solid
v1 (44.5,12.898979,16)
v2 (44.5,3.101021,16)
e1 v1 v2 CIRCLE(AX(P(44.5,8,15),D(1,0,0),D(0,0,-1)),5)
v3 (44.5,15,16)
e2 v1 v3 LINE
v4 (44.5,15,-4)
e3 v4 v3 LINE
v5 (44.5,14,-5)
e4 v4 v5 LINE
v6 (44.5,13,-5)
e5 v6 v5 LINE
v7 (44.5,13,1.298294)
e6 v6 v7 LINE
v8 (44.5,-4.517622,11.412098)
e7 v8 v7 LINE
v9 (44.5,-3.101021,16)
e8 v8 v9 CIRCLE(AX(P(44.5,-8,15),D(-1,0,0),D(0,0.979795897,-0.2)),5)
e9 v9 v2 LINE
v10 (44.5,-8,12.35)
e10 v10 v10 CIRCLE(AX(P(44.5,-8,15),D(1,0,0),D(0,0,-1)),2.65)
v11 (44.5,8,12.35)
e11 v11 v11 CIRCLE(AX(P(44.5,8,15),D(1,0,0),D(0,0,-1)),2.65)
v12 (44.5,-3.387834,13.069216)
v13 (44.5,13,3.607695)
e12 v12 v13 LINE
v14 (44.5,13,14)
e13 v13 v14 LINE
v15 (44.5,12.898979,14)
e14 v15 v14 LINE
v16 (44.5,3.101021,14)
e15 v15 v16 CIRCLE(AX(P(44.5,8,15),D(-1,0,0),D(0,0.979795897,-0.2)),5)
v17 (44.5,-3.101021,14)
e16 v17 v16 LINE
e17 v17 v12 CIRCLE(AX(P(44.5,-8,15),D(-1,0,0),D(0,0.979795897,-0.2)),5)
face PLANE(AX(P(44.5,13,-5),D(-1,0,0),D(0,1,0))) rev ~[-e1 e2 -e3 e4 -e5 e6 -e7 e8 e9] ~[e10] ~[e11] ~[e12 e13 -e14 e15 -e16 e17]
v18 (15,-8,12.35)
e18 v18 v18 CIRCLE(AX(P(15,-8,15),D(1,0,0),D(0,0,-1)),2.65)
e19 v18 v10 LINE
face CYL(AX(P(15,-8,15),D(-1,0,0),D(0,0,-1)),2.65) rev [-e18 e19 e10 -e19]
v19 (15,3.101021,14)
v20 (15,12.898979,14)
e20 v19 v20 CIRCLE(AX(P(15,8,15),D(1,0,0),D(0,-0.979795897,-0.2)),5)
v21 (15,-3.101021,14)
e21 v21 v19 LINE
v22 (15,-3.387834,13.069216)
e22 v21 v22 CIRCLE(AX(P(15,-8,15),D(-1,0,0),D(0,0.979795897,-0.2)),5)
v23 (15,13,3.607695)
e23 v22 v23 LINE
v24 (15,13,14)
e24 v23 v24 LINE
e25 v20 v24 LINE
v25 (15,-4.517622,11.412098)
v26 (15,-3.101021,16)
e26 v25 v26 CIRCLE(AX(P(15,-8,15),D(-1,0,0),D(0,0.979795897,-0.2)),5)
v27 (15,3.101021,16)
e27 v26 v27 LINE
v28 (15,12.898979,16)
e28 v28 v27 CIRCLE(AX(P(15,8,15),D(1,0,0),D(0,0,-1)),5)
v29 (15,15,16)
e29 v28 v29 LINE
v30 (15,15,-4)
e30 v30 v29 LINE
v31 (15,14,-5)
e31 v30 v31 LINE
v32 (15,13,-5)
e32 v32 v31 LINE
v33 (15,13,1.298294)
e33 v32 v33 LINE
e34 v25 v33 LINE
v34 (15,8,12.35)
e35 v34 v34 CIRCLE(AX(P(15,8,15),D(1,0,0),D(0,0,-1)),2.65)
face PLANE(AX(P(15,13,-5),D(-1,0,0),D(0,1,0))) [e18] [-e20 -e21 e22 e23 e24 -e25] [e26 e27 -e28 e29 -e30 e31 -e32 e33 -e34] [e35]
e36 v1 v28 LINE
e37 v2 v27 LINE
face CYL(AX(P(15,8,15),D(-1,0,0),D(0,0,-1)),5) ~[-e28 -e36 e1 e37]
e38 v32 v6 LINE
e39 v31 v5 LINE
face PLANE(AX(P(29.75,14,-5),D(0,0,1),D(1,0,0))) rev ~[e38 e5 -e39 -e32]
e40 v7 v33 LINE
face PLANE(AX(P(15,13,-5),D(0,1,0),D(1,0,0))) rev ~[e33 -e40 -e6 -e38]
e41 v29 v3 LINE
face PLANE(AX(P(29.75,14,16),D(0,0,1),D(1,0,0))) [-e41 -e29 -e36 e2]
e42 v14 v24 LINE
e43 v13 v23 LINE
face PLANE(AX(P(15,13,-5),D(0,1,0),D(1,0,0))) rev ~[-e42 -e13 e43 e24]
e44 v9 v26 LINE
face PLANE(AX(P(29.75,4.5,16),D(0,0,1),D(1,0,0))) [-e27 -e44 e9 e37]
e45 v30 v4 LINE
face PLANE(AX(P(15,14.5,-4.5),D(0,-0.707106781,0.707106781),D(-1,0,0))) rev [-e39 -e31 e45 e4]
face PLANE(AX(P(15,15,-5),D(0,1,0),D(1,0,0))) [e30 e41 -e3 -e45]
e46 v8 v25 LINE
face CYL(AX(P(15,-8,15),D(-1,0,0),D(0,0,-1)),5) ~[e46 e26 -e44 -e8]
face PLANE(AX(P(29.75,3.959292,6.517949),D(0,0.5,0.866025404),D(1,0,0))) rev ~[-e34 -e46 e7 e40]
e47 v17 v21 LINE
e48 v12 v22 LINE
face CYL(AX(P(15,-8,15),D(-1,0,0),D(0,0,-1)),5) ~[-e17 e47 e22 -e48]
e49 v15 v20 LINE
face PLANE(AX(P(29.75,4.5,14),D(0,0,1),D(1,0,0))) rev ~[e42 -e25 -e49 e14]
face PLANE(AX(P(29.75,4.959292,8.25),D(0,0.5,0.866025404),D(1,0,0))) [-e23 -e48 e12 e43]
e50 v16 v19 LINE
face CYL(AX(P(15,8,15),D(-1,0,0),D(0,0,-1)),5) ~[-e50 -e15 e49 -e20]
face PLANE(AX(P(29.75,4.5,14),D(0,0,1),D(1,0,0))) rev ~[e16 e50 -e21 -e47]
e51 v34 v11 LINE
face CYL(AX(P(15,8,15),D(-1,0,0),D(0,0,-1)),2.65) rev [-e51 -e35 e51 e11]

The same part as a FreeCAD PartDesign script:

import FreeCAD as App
import Part
import Sketcher
Q = App.Units.Quantity


def edges_at(feature, points):
    """Names of the edges that pass closest to the given points."""
    edges = feature.Shape.Edges
    near = lambda p: min(range(len(edges)), key=lambda i: edges[i].distToShape(Part.Vertex(*p))[0])
    return sorted({f"Edge{near(p) + 1}" for p in points})


def add_polygon(sketch, points):
    """Adds a closed chain of lines whose ends are joined by coincident constraints."""
    first, n = sketch.GeometryCount, len(points)
    for a, b in zip(points, points[1:] + points[:1]):
        sketch.addGeometry(Part.LineSegment(App.Vector(*a, 0), App.Vector(*b, 0)), False)
    for i in range(n):
        sketch.addConstraint(Sketcher.Constraint("Coincident", first + i, 2, first + (i + 1) % n, 1))

doc = App.newDocument("Part")
body = doc.addObject("PartDesign::Body", "Body")

sketch1 = body.newObject("Sketcher::SketchObject", "Sketch")
sketch1.AttachmentSupport = (doc.getObject("YZ_Plane"), [""])
sketch1.MapMode = "FlatFace"
sketch1.AttachmentOffset = App.Placement(App.Vector(0, 0, 15), App.Rotation())
sketch1.addGeometry(Part.Circle(App.Vector(-8, 15, 0), App.Vector(0, 0, 1), 2.6), False)
sketch1.addConstraint(Sketcher.Constraint("Diameter", 0, Q("5.3 mm")))
sketch1.addConstraint(Sketcher.Constraint("DistanceX", 0, 3, -1, 1, Q("8 mm")))
sketch1.addConstraint(Sketcher.Constraint("DistanceY", -1, 1, 0, 3, Q("15 mm")))
pad1 = body.newObject("PartDesign::Pad", "Pad")
pad1.Profile = sketch1
pad1.Length = 29.5
body2 = doc.addObject("PartDesign::Body", "Body001")
body2.AllowCompound = True

sketch2 = body2.newObject("Sketcher::SketchObject", "Sketch001")
sketch2.AttachmentSupport = (doc.getObject("YZ_Plane001"), [""])
sketch2.MapMode = "FlatFace"
sketch2.AttachmentOffset = App.Placement(App.Vector(0, 0, 15), App.Rotation())
sketch2.addGeometry(Part.Circle(App.Vector(8, 15, 0), App.Vector(0, 0, 1), 2.6), False)
sketch2.addConstraint(Sketcher.Constraint("Diameter", 0, Q("5.3 mm")))
sketch2.addConstraint(Sketcher.Constraint("DistanceX", -1, 1, 0, 3, Q("8 mm")))
sketch2.addConstraint(Sketcher.Constraint("DistanceY", -1, 1, 0, 3, Q("15 mm")))
pad2 = body2.newObject("PartDesign::Pad", "Pad001")
pad2.Profile = sketch2
pad2.Length = 29.5
doc.recompute()

boolean = body2.newObject("PartDesign::Boolean", "Boolean")
boolean.Type = "Fuse"
boolean.addObjects([body])
body3 = doc.addObject("PartDesign::Body", "Body002")

sketch3 = body3.newObject("Sketcher::SketchObject", "Sketch002")
sketch3.AttachmentSupport = (doc.getObject("XY_Plane002"), [""])
sketch3.MapMode = "FlatFace"
sketch3.AttachmentOffset = App.Placement(App.Vector(0, 0, 14), App.Rotation())
add_polygon(sketch3, [(15, 14), (15, -5), (44, -5), (44, 14)])
sketch3.addConstraint(Sketcher.Constraint("Vertical", 0))
sketch3.addConstraint(Sketcher.Constraint("Horizontal", 1))
sketch3.addConstraint(Sketcher.Constraint("Vertical", 2))
sketch3.addConstraint(Sketcher.Constraint("Horizontal", 3))
sketch3.addConstraint(Sketcher.Constraint("DistanceY", 0, 2, 0, 1, Q("19 mm")))
sketch3.addConstraint(Sketcher.Constraint("DistanceX", 1, 1, 1, 2, Q("29.5 mm")))
sketch3.addConstraint(Sketcher.Constraint("DistanceX", -1, 1, 0, 2, Q("15 mm")))
sketch3.addConstraint(Sketcher.Constraint("DistanceY", 0, 2, -1, 1, Q("5 mm")))
pad3 = body3.newObject("PartDesign::Pad", "Pad002")
pad3.Profile = sketch3
pad3.Length = 2
body4 = doc.addObject("PartDesign::Body", "Body003")

sketch4 = body4.newObject("Sketcher::SketchObject", "Sketch003")
sketch4.AttachmentSupport = (doc.getObject("XY_Plane003"), [""])
sketch4.MapMode = "FlatFace"
add_polygon(sketch4, [(0, 23), (0, 0), (30, 0), (30, 23)])
sketch4.addConstraint(Sketcher.Constraint("Vertical", 0))
sketch4.addConstraint(Sketcher.Constraint("Horizontal", 1))
sketch4.addConstraint(Sketcher.Constraint("Vertical", 2))
sketch4.addConstraint(Sketcher.Constraint("Horizontal", 3))
sketch4.addConstraint(Sketcher.Constraint("Coincident", 0, 2, -1, 1))
sketch4.addConstraint(Sketcher.Constraint("DistanceY", 0, 2, 0, 1, Q("23 mm")))
sketch4.addConstraint(Sketcher.Constraint("DistanceX", 1, 1, 1, 2, Q("29.5 mm")))
pad4 = body4.newObject("PartDesign::Pad", "Pad003")
pad4.Profile = sketch4
pad4.Length = 2
body5 = doc.addObject("PartDesign::Body", "Body004")
doc.recompute()

body4.Placement = App.Placement(App.Vector(15, -6, 12.267949), App.Rotation(App.Vector(-1, 0, 0), 30))
boolean2 = body5.newObject("PartDesign::Boolean", "Boolean001")
boolean2.Type = "Fuse"
boolean2.addObjects([body4])
body6 = doc.addObject("PartDesign::Body", "Body005")

sketch5 = body6.newObject("Sketcher::SketchObject", "Sketch004")
sketch5.AttachmentSupport = (doc.getObject("YZ_Plane005"), [""])
sketch5.MapMode = "FlatFace"
sketch5.AttachmentOffset = App.Placement(App.Vector(0, 0, 15), App.Rotation())
sketch5.addGeometry(Part.Circle(App.Vector(8, 15, 0), App.Vector(0, 0, 1), 5), False)
sketch5.addConstraint(Sketcher.Constraint("Diameter", 0, Q("10 mm")))
sketch5.addConstraint(Sketcher.Constraint("DistanceX", -1, 1, 0, 3, Q("8 mm")))
sketch5.addConstraint(Sketcher.Constraint("DistanceY", -1, 1, 0, 3, Q("15 mm")))
pad5 = body6.newObject("PartDesign::Pad", "Pad004")
pad5.Profile = sketch5
pad5.Length = 29.5
body7 = doc.addObject("PartDesign::Body", "Body006")

sketch6 = body7.newObject("Sketcher::SketchObject", "Sketch005")
sketch6.AttachmentSupport = (doc.getObject("XY_Plane006"), [""])
sketch6.MapMode = "FlatFace"
sketch6.AttachmentOffset = App.Placement(App.Vector(0, 0, -5), App.Rotation())
add_polygon(sketch6, [(15, 15), (15, 13), (44.5, 13), (44.5, 15)])
sketch6.addConstraint(Sketcher.Constraint("Vertical", 0))
sketch6.addConstraint(Sketcher.Constraint("Horizontal", 1))
sketch6.addConstraint(Sketcher.Constraint("Vertical", 2))
sketch6.addConstraint(Sketcher.Constraint("Horizontal", 3))
sketch6.addConstraint(Sketcher.Constraint("DistanceY", 0, 2, 0, 1, Q("2 mm")))
sketch6.addConstraint(Sketcher.Constraint("DistanceX", 1, 1, 1, 2, Q("29.5 mm")))
sketch6.addConstraint(Sketcher.Constraint("DistanceX", -1, 1, 0, 2, Q("15 mm")))
sketch6.addConstraint(Sketcher.Constraint("DistanceY", -1, 1, 0, 2, Q("13 mm")))
pad6 = body7.newObject("PartDesign::Pad", "Pad005")
pad6.Profile = sketch6
pad6.Length = 21
body8 = doc.addObject("PartDesign::Body", "Body007")

sketch7 = body8.newObject("Sketcher::SketchObject", "Sketch006")
sketch7.AttachmentSupport = (doc.getObject("YZ_Plane007"), [""])
sketch7.MapMode = "FlatFace"
sketch7.AttachmentOffset = App.Placement(App.Vector(0, 0, 15), App.Rotation())
sketch7.addGeometry(Part.Circle(App.Vector(-8, 15, 0), App.Vector(0, 0, 1), 5), False)
sketch7.addConstraint(Sketcher.Constraint("Diameter", 0, Q("10 mm")))
sketch7.addConstraint(Sketcher.Constraint("DistanceX", 0, 3, -1, 1, Q("8 mm")))
sketch7.addConstraint(Sketcher.Constraint("DistanceY", -1, 1, 0, 3, Q("15 mm")))
pad7 = body8.newObject("PartDesign::Pad", "Pad006")
pad7.Profile = sketch7
pad7.Length = 29.5
doc.recompute()

boolean3 = body8.newObject("PartDesign::Boolean", "Boolean002")
boolean3.Type = "Fuse"
boolean3.addObjects([body3])
doc.recompute()

boolean4 = body8.newObject("PartDesign::Boolean", "Boolean003")
boolean4.Type = "Fuse"
boolean4.addObjects([body5])
doc.recompute()

boolean5 = body8.newObject("PartDesign::Boolean", "Boolean004")
boolean5.Type = "Fuse"
boolean5.addObjects([body6])
doc.recompute()

boolean6 = body8.newObject("PartDesign::Boolean", "Boolean005")
boolean6.Type = "Fuse"
boolean6.addObjects([body7])
doc.recompute()

chamfer = body8.newObject("PartDesign::Chamfer", "Chamfer")
chamfer.Base = (boolean6, edges_at(boolean6, [(29.75, 15, -5)]))
chamfer.Size = 1
doc.recompute()

boolean7 = body8.newObject("PartDesign::Boolean", "Boolean006")
boolean7.Type = "Cut"
boolean7.addObjects([body2])

doc.recompute()
